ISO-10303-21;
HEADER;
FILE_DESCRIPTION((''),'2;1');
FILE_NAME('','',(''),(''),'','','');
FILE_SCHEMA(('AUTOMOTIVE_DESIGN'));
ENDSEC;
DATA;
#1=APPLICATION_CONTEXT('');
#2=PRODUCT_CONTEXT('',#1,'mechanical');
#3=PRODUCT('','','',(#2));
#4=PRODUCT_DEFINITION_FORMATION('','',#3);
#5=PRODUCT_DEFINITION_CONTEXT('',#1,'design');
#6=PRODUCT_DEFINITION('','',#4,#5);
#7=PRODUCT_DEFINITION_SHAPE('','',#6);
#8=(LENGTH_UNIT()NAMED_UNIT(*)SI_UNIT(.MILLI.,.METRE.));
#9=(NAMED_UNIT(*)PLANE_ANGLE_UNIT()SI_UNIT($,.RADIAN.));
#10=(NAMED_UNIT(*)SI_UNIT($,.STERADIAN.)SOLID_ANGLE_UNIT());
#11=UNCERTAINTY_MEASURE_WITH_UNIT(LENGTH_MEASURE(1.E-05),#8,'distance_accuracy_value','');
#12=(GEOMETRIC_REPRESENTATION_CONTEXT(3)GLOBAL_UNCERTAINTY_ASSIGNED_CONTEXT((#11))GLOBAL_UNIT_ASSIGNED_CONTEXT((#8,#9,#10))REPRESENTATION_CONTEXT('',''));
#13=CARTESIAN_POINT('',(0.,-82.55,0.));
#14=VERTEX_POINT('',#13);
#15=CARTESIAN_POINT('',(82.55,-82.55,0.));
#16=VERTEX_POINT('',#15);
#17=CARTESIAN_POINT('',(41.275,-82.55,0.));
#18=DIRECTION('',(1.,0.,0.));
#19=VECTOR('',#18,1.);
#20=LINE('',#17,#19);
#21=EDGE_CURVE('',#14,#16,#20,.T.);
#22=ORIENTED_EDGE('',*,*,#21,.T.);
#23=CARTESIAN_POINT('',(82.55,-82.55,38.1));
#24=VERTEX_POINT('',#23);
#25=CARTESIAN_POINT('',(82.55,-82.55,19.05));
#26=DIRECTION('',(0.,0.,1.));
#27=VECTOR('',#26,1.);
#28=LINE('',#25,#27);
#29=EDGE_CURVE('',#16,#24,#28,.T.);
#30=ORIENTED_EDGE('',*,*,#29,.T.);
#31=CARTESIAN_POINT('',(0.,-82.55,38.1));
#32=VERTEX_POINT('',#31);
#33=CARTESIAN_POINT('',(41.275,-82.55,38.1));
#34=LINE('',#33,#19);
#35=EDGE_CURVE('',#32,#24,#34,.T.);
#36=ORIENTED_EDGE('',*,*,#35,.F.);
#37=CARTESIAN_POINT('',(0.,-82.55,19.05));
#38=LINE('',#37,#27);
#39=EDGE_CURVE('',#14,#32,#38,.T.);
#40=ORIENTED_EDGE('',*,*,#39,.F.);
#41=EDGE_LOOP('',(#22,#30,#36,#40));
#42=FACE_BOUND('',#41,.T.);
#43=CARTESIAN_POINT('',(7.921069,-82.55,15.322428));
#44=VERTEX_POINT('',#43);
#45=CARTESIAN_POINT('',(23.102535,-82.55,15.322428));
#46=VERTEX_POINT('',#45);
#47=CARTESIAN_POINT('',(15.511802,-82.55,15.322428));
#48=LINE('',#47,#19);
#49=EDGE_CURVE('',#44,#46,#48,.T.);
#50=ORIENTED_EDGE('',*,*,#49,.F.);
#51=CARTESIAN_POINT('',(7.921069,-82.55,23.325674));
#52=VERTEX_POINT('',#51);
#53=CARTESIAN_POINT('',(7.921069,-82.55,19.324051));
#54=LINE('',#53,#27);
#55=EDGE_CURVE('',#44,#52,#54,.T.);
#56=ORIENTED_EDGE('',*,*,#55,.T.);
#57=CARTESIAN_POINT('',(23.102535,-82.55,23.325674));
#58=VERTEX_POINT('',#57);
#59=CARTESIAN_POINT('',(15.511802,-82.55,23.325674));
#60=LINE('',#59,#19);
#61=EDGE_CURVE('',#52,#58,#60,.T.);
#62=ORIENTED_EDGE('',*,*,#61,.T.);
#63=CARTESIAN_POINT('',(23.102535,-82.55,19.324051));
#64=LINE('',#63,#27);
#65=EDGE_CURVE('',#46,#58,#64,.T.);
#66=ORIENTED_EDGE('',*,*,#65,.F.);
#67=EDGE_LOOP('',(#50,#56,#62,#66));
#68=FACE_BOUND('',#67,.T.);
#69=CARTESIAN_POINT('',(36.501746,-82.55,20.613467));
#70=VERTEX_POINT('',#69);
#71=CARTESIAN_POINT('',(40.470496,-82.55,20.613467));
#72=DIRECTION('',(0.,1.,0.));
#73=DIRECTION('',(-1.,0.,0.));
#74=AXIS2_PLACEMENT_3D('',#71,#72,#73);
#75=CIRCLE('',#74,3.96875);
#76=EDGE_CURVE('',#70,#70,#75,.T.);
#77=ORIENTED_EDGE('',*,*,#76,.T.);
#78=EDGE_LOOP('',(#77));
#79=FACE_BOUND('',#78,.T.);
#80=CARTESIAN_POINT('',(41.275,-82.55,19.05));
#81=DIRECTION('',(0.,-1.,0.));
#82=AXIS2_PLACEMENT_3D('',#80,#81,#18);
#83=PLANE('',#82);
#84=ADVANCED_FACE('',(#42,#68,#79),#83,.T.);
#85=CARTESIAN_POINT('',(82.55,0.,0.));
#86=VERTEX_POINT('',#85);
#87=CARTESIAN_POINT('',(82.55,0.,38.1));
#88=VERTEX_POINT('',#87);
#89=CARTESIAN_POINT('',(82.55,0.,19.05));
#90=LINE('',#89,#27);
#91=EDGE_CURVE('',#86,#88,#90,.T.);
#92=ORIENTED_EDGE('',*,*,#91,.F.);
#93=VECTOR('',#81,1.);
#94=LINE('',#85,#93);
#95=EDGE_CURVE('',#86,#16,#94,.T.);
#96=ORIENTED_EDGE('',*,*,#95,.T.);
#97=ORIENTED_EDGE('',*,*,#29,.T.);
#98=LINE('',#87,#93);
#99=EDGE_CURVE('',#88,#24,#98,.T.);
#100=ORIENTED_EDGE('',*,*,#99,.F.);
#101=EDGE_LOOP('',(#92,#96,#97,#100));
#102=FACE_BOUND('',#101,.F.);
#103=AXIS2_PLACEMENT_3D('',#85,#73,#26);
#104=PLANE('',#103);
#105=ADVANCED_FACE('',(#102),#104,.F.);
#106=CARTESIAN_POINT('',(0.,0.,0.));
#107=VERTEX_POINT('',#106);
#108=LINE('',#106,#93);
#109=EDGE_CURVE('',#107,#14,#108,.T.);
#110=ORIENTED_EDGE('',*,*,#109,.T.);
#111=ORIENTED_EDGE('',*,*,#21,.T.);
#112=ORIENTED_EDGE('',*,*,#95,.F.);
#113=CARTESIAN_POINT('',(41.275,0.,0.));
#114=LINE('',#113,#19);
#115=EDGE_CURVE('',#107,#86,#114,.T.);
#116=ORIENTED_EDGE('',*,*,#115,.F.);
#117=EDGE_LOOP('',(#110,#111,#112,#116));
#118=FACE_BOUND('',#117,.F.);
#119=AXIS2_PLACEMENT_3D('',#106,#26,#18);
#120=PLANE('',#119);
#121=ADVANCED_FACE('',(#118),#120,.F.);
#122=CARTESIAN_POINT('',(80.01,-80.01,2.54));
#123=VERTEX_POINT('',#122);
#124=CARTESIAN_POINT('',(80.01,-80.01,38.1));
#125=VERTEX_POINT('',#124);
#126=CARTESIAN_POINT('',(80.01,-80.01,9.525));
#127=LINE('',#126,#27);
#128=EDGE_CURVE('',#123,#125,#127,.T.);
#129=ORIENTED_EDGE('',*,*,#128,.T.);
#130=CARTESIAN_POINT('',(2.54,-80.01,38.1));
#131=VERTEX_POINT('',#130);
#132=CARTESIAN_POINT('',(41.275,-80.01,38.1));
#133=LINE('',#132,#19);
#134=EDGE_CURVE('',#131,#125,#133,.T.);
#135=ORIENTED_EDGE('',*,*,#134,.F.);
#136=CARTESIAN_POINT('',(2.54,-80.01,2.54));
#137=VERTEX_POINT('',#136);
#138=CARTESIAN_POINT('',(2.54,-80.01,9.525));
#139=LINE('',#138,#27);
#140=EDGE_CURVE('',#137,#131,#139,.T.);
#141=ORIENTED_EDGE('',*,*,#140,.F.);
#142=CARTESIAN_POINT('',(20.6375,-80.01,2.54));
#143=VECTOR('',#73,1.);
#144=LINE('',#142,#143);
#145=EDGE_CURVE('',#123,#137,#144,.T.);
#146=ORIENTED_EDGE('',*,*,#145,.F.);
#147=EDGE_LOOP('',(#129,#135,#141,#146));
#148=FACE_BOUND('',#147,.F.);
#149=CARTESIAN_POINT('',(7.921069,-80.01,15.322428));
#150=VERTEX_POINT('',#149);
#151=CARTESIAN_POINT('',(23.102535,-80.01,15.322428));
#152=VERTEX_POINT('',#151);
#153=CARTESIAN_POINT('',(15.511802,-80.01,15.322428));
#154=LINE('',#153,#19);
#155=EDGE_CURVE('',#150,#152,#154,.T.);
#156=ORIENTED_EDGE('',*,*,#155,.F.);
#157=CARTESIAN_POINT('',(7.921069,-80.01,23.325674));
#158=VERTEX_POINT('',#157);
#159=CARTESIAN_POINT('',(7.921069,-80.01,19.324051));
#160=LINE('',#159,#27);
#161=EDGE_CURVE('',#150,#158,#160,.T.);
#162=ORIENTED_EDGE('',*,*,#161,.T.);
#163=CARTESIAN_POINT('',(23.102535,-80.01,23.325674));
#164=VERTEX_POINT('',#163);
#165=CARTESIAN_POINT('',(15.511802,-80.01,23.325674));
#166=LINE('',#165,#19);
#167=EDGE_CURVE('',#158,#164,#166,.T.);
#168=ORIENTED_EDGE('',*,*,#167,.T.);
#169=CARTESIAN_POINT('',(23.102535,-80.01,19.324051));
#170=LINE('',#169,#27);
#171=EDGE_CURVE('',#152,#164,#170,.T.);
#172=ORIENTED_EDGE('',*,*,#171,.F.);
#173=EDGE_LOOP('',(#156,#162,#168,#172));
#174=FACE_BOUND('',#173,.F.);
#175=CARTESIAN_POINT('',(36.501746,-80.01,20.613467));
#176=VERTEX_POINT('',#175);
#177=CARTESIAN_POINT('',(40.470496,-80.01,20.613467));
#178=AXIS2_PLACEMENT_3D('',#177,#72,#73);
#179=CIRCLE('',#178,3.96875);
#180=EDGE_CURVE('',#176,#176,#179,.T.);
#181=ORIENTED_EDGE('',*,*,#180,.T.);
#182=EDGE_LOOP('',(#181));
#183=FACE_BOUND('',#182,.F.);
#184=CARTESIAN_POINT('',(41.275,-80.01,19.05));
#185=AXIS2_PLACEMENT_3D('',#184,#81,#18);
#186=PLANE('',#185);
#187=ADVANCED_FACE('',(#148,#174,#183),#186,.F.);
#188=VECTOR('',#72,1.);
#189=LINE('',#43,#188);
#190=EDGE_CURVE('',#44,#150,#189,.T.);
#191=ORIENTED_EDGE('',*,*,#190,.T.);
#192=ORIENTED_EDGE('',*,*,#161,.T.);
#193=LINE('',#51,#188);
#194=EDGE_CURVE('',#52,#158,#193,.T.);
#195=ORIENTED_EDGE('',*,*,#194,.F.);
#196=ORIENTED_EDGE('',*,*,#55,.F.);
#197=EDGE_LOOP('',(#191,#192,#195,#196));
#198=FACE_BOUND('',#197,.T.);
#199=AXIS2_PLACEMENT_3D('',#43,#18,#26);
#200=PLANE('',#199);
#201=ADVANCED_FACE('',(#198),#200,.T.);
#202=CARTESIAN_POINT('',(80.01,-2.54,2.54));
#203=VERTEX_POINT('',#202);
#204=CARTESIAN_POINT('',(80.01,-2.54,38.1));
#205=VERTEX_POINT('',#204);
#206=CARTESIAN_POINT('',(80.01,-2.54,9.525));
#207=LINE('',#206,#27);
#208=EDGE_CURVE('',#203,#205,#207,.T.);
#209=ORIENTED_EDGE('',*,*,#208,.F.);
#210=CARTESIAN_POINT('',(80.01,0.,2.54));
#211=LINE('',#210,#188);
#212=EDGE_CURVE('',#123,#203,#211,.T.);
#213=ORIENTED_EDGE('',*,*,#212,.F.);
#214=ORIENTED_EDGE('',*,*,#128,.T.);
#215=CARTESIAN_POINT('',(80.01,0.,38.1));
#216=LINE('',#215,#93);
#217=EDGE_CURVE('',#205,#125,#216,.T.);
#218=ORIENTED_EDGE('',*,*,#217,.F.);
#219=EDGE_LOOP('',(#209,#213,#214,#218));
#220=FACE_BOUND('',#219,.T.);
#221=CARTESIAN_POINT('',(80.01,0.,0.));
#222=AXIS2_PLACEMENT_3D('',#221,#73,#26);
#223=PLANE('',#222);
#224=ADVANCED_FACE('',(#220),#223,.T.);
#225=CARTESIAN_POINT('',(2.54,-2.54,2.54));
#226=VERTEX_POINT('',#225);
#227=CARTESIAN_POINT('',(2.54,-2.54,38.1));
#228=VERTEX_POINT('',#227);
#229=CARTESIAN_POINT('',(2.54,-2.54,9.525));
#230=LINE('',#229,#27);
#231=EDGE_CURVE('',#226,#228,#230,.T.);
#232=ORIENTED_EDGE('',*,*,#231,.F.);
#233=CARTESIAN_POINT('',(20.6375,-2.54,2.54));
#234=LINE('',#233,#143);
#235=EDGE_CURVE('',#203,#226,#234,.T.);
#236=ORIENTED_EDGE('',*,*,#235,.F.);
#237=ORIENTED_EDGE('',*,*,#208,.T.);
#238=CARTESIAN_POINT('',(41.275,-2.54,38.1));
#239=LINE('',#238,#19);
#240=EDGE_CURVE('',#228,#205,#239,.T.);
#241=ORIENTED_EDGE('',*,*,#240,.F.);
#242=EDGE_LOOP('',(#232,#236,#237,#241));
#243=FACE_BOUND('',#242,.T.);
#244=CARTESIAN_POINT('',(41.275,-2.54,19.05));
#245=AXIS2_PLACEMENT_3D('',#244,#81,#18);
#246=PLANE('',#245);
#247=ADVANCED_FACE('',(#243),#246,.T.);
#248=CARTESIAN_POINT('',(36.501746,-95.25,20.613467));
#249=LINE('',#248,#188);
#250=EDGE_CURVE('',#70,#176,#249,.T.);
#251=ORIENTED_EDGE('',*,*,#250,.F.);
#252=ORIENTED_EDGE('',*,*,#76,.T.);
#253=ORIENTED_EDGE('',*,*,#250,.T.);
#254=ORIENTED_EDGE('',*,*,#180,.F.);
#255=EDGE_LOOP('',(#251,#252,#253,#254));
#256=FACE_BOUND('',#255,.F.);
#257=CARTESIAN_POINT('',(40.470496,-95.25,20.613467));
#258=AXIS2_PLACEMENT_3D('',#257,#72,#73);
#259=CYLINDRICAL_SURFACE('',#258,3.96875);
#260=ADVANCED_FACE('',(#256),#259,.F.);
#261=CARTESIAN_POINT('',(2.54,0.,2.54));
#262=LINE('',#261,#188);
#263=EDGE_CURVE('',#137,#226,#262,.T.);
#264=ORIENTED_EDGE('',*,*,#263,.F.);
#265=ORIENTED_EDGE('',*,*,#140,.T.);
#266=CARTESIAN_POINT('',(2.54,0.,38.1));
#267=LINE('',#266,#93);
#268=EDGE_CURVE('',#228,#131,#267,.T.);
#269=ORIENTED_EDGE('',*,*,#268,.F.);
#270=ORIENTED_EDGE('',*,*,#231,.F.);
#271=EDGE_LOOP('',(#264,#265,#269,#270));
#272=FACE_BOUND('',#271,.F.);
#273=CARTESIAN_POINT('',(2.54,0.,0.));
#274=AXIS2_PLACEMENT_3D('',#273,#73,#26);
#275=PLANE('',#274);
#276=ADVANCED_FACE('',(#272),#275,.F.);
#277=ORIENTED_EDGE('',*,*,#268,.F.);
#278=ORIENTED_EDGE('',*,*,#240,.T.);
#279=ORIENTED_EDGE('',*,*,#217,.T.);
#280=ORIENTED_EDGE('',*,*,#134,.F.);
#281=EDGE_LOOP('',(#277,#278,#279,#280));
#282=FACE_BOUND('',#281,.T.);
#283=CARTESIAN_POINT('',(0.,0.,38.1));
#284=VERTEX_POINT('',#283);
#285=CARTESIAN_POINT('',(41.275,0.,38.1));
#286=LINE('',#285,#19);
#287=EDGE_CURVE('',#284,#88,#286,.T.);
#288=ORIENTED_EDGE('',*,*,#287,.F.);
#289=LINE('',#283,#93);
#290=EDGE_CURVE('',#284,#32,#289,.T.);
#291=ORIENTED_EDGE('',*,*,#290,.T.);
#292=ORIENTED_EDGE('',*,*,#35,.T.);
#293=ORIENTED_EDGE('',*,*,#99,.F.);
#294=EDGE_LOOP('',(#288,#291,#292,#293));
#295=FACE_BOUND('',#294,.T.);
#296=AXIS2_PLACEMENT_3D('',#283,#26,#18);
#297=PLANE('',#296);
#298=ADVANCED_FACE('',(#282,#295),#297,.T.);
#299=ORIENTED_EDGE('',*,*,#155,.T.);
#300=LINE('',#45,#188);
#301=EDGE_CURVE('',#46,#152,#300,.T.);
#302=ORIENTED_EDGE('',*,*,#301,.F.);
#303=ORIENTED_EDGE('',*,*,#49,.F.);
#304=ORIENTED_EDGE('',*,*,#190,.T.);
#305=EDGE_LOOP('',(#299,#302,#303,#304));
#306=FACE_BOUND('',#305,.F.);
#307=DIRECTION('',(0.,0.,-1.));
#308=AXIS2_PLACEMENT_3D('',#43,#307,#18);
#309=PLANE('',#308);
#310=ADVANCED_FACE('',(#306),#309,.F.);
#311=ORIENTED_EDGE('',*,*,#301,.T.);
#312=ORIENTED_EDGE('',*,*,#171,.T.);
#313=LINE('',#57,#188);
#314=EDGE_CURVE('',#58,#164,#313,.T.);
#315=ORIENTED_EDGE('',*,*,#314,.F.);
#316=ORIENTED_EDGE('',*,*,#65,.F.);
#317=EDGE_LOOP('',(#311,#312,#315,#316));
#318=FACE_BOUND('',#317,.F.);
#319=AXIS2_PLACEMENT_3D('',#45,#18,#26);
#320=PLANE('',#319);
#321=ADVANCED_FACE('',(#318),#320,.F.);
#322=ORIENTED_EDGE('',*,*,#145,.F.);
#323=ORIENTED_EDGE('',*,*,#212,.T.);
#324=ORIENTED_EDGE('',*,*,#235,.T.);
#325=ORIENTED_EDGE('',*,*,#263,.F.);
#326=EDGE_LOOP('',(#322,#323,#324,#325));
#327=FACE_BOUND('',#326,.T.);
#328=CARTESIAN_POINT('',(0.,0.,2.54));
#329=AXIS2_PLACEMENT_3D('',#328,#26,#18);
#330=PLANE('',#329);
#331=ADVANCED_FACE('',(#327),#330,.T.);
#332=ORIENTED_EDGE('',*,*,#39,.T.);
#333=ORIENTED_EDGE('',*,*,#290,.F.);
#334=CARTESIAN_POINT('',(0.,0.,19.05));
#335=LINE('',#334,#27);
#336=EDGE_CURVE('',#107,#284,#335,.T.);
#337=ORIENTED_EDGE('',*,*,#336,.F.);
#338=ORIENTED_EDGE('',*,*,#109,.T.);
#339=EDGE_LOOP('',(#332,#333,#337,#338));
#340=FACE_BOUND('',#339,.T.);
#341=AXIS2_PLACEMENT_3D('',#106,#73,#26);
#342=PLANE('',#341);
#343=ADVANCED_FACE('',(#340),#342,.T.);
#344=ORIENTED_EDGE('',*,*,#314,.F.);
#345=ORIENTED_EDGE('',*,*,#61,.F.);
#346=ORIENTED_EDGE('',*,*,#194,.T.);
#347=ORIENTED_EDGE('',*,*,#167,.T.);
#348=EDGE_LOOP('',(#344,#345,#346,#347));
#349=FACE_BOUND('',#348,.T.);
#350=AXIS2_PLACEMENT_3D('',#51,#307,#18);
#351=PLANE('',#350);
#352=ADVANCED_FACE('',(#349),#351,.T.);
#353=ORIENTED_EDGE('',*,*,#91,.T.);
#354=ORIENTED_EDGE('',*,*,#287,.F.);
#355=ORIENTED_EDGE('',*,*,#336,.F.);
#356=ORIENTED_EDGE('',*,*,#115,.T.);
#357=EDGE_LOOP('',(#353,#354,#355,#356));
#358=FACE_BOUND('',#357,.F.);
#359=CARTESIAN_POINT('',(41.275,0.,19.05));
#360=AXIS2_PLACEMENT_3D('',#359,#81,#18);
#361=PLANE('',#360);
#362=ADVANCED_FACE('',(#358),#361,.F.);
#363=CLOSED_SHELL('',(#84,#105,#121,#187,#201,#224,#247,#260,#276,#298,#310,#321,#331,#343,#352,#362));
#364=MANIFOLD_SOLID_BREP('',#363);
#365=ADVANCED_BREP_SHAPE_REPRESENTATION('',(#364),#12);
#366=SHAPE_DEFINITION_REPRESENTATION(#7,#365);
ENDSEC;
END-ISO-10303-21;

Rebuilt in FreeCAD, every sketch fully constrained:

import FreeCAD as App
import Part
import Sketcher
from FreeCAD import Vector
Q = App.Units.Quantity


def faces_at(feature, points):
    """Names of the faces that lie closest to the given points."""
    faces = feature.Shape.Faces
    near = lambda p: min(range(len(faces)), key=lambda i: faces[i].distToShape(Part.Vertex(*p))[0])
    return sorted({f"Face{near(p) + 1}" for p in points})

doc = App.newDocument("Part")
body = doc.addObject("PartDesign::Body", "Body")

sketch1 = body.newObject("Sketcher::SketchObject", "Sketch")
sketch1.AttachmentSupport = (doc.getObject("XZ_Plane"), [""])
sketch1.MapMode = "FlatFace"
sketch1.addGeometry([
    Part.LineSegment(Vector(0, 38.1, 0), Vector(0, 0, 0)),
    Part.LineSegment(Vector(0, 0, 0), Vector(82.55, 0, 0)),
    Part.LineSegment(Vector(82.55, 0, 0), Vector(82.55, 38.1, 0)),
    Part.LineSegment(Vector(82.55, 38.1, 0), Vector(0, 38.1, 0)),
], False)
sketch1.addConstraint([
    Sketcher.Constraint("Coincident", 0, 2, 1, 1),
    Sketcher.Constraint("Coincident", 1, 2, 2, 1),
    Sketcher.Constraint("Coincident", 2, 2, 3, 1),
    Sketcher.Constraint("Coincident", 3, 2, 0, 1),
    Sketcher.Constraint("Vertical", 0),
    Sketcher.Constraint("Horizontal", 1),
    Sketcher.Constraint("Vertical", 2),
    Sketcher.Constraint("Horizontal", 3),
    Sketcher.Constraint("Coincident", 0, 2, -1, 1),
    Sketcher.Constraint("DistanceY", 0, 2, 0, 1, Q("1.5 in")),
    Sketcher.Constraint("DistanceX", 1, 1, 1, 2, Q("3.25 in")),
])
pad1 = body.newObject("PartDesign::Pad", "Pad")
pad1.Profile = sketch1
pad1.Length = Q("3.25 in")
doc.recompute()

thickness = body.newObject("PartDesign::Thickness", "Thickness")
thickness.Base = (pad1, faces_at(pad1, [(41.275, -41.275, 38.1)]))
thickness.Value = Q("0.1 in")
thickness.Reversed = True
thickness.Join = "Arc"

sketch2 = body.newObject("Sketcher::SketchObject", "Sketch001")
sketch2.AttachmentSupport = (doc.getObject("XZ_Plane"), [""])
sketch2.MapMode = "FlatFace"
sketch2.AttachmentOffset = App.Placement(Vector(0, 0, 3.25 * 25.4), App.Rotation())
sketch2.addGeometry(Part.Circle(Vector(40.470496, 20.613467, 0), Vector(0, 0, 1), 3.96875), False)
sketch2.addConstraint([
    Sketcher.Constraint("Diameter", 0, Q("0.3125 in")),
    Sketcher.Constraint("DistanceX", -1, 1, 0, 3, Q("40.470496 mm")),
    Sketcher.Constraint("DistanceY", -1, 1, 0, 3, Q("20.613467 mm")),
])
doc.recompute()
hole = body.newObject("PartDesign::Hole", "Hole")
hole.Profile = sketch2
hole.ThreadType = "None"
hole.Diameter = Q("0.3125 in")
hole.DepthType = "Dimension"
hole.Depth = Q("0.5 in")
hole.DrillPoint = "Flat"

sketch3 = body.newObject("Sketcher::SketchObject", "Sketch002")
sketch3.AttachmentSupport = (doc.getObject("XZ_Plane"), [""])
sketch3.MapMode = "FlatFace"
sketch3.AttachmentOffset = App.Placement(Vector(0, 0, 3.25 * 25.4), App.Rotation())
sketch3.addGeometry([
    Part.LineSegment(Vector(7.921069, 23.325674, 0), Vector(7.921069, 15.322428, 0)),
    Part.LineSegment(Vector(7.921069, 15.322428, 0), Vector(23.102535, 15.322428, 0)),
    Part.LineSegment(Vector(23.102535, 15.322428, 0), Vector(23.102535, 23.325674, 0)),
    Part.LineSegment(Vector(23.102535, 23.325674, 0), Vector(7.921069, 23.325674, 0)),
], False)
sketch3.addConstraint([
    Sketcher.Constraint("Coincident", 0, 2, 1, 1),
    Sketcher.Constraint("Coincident", 1, 2, 2, 1),
    Sketcher.Constraint("Coincident", 2, 2, 3, 1),
    Sketcher.Constraint("Coincident", 3, 2, 0, 1),
    Sketcher.Constraint("Vertical", 0),
    Sketcher.Constraint("Horizontal", 1),
    Sketcher.Constraint("Vertical", 2),
    Sketcher.Constraint("Horizontal", 3),
    Sketcher.Constraint("DistanceX", 1, 1, 1, 2, Q("15.181465 mm")),
    Sketcher.Constraint("DistanceY", 0, 2, 0, 1, Q("8.003246 mm")),
    Sketcher.Constraint("DistanceX", -1, 1, 0, 2, Q("7.921069 mm")),
    Sketcher.Constraint("DistanceY", -1, 1, 0, 2, Q("15.322428 mm")),
])
pocket1 = body.newObject("PartDesign::Pocket", "Pocket")
pocket1.Profile = sketch3
pocket1.Length = Q("0.1 in")

doc.recompute()
